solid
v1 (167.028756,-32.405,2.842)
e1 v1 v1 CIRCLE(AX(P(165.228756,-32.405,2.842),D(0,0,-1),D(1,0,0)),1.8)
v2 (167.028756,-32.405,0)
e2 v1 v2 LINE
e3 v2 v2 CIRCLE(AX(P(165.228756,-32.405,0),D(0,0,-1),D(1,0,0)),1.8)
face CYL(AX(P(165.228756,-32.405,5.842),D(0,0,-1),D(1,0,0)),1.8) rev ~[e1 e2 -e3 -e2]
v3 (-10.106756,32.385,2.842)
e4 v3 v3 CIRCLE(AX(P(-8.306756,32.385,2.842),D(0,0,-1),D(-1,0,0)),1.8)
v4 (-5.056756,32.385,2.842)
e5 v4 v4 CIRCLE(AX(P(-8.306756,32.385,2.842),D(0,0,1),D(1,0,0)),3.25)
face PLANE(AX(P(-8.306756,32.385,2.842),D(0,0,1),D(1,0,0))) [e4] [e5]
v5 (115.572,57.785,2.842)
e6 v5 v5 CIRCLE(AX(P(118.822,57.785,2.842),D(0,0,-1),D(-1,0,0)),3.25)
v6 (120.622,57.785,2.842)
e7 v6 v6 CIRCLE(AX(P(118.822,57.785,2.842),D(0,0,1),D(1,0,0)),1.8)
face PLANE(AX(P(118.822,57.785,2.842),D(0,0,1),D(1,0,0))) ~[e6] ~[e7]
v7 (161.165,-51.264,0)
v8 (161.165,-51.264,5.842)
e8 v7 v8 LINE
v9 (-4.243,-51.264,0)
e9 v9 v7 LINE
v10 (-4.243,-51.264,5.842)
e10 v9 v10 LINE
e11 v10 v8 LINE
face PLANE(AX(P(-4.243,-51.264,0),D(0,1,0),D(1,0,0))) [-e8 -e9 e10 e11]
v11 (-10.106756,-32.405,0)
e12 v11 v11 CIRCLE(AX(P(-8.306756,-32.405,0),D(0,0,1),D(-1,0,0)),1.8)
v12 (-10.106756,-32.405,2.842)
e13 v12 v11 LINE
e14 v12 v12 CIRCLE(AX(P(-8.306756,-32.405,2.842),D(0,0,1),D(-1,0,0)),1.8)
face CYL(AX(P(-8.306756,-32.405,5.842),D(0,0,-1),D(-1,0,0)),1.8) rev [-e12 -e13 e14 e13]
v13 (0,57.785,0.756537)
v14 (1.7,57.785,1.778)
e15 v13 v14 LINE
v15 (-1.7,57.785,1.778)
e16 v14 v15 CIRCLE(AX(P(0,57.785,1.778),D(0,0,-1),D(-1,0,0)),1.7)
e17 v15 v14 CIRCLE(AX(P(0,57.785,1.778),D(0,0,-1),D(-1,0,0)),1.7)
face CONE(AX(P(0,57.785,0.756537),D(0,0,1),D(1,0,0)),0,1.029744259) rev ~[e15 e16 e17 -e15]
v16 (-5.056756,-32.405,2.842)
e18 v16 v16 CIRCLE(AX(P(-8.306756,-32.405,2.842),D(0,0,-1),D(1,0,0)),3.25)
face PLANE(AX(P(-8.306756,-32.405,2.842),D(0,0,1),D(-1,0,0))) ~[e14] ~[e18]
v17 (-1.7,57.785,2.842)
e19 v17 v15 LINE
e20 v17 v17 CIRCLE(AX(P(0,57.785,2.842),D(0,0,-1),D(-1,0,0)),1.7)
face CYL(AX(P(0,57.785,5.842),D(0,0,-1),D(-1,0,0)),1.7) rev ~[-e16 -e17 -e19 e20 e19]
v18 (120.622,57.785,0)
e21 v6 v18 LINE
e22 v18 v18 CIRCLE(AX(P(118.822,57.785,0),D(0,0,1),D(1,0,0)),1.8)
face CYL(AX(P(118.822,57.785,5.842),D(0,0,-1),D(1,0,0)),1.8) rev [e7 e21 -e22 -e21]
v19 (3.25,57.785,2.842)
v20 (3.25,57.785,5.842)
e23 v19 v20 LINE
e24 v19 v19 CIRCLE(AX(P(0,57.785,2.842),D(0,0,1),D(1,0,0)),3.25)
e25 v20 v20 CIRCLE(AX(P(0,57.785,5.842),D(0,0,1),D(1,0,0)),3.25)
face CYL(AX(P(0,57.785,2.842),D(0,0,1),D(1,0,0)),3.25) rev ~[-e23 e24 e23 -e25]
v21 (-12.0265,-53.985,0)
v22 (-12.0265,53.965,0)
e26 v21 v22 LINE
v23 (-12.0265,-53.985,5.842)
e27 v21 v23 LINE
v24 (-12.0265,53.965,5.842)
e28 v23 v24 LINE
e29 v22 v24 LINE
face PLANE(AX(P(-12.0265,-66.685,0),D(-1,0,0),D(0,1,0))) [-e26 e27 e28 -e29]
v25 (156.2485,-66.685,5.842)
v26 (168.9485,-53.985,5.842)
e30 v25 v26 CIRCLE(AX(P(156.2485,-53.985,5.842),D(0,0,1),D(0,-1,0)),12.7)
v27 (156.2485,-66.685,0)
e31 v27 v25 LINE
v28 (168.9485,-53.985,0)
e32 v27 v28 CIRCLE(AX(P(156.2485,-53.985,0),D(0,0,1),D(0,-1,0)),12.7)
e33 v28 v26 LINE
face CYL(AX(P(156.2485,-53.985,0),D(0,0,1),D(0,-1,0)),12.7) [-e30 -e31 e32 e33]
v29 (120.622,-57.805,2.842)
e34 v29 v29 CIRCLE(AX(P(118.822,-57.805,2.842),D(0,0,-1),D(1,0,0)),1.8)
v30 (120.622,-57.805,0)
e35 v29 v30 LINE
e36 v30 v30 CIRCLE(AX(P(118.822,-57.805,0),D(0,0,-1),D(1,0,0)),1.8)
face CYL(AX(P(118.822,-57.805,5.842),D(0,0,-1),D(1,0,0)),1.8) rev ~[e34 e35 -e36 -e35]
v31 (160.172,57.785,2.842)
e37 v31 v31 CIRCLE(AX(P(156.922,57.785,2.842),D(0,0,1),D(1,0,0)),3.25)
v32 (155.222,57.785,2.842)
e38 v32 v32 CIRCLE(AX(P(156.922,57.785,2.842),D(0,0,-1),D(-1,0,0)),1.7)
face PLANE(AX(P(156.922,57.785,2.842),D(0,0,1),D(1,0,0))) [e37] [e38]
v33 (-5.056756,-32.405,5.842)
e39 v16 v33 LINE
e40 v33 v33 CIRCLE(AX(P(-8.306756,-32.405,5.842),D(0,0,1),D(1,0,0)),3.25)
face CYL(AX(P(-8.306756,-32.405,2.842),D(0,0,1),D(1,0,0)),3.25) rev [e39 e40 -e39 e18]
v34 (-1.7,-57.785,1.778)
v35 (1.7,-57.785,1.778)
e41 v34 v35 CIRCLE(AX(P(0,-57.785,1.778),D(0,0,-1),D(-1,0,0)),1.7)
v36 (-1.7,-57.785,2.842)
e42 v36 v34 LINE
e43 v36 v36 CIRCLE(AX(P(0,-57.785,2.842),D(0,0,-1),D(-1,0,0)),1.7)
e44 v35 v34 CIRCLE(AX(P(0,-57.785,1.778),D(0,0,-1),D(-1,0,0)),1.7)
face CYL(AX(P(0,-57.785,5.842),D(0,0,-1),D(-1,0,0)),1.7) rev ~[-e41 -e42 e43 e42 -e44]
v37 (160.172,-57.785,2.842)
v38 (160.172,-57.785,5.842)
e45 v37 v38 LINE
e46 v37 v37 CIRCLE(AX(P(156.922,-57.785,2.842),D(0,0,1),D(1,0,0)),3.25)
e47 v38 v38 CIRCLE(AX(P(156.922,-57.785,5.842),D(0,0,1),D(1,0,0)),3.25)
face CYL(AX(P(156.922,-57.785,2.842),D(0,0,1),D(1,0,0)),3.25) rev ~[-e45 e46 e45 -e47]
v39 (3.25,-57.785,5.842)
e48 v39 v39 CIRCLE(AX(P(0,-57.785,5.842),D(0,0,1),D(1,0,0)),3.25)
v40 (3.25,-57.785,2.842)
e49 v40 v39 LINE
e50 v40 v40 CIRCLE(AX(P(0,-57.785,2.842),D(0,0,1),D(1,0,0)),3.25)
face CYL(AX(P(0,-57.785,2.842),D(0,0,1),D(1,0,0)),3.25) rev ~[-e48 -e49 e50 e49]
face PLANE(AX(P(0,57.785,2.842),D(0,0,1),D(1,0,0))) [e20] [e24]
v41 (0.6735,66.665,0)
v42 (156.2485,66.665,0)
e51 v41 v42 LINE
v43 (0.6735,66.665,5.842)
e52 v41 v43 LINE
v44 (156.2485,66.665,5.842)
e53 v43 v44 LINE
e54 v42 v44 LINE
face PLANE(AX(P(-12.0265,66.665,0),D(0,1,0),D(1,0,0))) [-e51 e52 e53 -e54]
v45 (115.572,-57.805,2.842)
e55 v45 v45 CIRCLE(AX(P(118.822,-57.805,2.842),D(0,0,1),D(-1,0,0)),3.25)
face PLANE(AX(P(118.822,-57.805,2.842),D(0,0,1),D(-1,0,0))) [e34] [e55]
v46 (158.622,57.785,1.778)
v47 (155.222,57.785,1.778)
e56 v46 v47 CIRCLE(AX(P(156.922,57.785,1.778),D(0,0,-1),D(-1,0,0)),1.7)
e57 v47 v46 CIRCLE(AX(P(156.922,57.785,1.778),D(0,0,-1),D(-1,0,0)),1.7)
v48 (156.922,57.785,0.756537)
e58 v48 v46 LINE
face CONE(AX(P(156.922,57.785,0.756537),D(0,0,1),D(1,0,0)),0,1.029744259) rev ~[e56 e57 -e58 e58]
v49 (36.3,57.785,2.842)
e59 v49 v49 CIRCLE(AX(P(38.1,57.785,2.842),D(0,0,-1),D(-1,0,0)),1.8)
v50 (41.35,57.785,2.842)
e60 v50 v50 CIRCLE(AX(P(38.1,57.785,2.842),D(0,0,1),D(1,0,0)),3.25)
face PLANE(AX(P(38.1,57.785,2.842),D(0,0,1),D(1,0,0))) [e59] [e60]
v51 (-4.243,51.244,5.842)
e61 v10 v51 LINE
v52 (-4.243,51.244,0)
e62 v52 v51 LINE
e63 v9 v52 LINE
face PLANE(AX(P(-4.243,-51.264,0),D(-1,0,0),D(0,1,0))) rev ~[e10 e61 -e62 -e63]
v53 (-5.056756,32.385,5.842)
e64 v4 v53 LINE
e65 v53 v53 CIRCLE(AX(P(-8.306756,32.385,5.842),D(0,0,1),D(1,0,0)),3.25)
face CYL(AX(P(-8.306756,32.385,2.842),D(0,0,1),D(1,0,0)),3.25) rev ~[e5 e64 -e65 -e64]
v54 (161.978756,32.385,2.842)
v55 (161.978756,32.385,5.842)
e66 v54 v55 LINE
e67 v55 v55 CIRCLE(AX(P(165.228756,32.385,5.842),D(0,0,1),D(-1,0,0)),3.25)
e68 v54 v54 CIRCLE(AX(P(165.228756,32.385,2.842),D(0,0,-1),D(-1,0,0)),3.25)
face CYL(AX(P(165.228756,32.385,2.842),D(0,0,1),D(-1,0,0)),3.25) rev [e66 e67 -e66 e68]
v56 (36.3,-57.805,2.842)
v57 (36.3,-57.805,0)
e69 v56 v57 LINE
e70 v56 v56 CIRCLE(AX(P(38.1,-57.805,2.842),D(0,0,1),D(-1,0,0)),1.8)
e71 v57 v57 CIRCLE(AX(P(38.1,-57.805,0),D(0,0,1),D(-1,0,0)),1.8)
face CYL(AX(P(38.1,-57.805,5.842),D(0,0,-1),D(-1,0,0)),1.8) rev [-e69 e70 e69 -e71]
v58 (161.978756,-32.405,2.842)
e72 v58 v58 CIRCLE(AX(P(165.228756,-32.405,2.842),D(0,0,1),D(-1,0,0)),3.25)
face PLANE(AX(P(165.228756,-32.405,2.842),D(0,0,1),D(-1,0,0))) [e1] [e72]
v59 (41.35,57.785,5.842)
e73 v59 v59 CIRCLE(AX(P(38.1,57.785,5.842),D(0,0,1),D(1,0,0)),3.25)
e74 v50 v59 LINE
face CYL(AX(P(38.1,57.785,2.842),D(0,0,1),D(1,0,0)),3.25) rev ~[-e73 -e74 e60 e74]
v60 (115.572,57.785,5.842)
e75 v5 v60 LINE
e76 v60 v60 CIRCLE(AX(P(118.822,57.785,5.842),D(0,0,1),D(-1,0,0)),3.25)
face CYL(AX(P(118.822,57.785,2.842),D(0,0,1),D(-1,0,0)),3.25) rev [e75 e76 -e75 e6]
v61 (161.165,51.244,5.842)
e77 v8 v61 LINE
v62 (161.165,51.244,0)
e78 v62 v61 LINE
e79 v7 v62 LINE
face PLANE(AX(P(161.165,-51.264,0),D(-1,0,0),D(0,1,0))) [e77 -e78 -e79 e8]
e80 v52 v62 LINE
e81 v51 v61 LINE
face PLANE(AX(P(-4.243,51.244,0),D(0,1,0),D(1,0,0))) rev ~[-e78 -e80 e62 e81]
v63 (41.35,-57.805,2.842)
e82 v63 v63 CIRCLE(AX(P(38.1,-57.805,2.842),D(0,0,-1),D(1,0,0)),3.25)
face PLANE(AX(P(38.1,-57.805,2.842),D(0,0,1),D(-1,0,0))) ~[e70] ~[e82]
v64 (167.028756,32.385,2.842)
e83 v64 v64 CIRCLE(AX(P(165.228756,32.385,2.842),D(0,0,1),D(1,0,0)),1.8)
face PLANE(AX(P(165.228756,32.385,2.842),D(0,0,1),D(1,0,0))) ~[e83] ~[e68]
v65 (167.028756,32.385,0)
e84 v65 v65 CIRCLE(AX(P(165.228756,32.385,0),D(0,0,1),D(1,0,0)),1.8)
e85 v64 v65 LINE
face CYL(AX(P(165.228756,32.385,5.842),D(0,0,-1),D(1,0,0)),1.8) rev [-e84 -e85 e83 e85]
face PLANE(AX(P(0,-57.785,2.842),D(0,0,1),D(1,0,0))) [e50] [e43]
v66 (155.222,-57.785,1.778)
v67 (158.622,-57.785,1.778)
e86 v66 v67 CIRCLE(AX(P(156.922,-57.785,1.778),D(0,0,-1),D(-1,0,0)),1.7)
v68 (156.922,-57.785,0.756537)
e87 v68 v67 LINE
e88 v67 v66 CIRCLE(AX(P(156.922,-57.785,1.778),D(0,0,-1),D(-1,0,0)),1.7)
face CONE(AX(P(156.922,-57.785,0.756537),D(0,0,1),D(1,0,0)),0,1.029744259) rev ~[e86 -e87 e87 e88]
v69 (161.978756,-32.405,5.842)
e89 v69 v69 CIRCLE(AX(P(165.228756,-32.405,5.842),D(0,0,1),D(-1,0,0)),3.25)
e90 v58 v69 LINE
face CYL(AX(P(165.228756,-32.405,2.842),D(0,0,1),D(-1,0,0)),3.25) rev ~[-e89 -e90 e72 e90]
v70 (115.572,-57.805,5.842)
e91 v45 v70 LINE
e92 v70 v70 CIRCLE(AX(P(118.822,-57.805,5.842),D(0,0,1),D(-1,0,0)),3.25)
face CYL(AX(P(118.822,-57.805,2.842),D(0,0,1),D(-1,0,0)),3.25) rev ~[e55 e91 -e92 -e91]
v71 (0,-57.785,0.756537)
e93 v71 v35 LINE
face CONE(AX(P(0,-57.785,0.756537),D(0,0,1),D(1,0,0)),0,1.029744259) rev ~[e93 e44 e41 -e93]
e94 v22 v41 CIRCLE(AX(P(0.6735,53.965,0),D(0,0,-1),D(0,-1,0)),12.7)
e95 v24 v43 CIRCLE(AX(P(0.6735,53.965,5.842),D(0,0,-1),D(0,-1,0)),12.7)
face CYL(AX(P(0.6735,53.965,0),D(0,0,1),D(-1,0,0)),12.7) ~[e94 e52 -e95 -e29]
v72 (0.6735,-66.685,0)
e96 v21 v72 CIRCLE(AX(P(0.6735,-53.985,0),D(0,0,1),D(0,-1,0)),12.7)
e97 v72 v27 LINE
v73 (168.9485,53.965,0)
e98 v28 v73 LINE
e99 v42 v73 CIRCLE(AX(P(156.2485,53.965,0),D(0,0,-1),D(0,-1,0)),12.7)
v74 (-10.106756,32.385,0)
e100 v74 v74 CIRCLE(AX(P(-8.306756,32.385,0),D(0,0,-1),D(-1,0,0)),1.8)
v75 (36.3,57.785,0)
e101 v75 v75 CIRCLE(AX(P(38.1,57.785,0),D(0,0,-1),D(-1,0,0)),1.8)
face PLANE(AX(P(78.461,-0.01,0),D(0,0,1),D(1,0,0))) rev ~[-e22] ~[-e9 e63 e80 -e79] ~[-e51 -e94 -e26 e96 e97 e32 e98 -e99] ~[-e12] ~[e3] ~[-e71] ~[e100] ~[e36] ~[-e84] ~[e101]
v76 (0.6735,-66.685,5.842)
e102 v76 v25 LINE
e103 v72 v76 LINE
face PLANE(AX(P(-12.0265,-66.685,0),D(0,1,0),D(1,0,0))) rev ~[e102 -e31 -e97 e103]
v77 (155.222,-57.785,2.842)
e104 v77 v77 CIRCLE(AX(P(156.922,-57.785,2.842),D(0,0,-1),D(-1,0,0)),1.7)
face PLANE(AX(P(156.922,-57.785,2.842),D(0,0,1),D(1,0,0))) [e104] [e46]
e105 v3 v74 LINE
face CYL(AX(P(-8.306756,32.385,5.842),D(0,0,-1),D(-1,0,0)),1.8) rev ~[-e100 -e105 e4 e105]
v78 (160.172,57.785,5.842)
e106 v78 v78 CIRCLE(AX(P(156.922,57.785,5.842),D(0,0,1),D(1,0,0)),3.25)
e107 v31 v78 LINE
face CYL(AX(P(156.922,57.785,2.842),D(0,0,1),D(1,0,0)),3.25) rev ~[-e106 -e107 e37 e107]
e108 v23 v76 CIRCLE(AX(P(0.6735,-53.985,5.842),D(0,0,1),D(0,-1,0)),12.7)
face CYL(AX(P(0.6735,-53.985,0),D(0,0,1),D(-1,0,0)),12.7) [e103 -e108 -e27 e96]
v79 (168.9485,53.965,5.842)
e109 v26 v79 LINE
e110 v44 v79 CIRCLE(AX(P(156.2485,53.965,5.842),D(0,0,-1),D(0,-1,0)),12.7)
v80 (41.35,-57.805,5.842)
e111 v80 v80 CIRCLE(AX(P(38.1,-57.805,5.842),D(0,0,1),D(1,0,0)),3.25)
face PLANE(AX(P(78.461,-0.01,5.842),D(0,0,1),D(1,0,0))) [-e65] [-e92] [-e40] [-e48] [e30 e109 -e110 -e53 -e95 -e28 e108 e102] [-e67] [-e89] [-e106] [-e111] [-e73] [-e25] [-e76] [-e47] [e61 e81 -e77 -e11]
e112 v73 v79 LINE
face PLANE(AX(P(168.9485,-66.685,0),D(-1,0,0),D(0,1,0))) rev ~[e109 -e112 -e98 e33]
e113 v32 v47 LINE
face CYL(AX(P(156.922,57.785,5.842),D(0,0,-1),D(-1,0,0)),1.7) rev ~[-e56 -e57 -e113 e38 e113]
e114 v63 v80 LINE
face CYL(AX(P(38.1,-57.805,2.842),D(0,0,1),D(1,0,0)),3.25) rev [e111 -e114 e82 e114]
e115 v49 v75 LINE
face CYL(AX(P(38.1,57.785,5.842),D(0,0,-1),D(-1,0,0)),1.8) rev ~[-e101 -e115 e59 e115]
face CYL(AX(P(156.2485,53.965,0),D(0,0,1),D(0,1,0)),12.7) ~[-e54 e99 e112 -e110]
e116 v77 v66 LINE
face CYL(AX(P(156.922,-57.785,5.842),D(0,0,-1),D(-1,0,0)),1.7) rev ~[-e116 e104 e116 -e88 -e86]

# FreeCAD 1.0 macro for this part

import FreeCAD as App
import Part
import Sketcher
from FreeCAD import Vector
Q = App.Units.Quantity


def edges_at(feature, points):
    """Names of the edges that pass closest to the given points."""
    edges = feature.Shape.Edges
    near = lambda p: min(range(len(edges)), key=lambda i: edges[i].distToShape(Part.Vertex(*p))[0])
    return sorted({f"Edge{near(p) + 1}" for p in points})


def add_polygon(sketch, points):
    """Adds a closed chain of lines whose ends are joined by coincident constraints."""
    first, n = sketch.GeometryCount, len(points)
    for a, b in zip(points, points[1:] + points[:1]):
        sketch.addGeometry(Part.LineSegment(App.Vector(*a, 0), App.Vector(*b, 0)), False)
    for i in range(n):
        sketch.addConstraint(Sketcher.Constraint("Coincident", first + i, 2, first + (i + 1) % n, 1))

doc = App.newDocument("Part")
body = doc.addObject("PartDesign::Body", "Body")

# Sketch on XY plane
sketch1 = body.newObject("Sketcher::SketchObject", "Sketch")
sketch1.AttachmentSupport = (doc.getObject("XY_Plane"), [""])
sketch1.MapMode = "FlatFace"
add_polygon(sketch1, [(-12, 67), (-12, -67), (169, -67), (169, 67)])  # lines 0-3
add_polygon(sketch1, [(161, -51), (-4, -51), (-4, 51), (161, 51)])  # lines 4-7
sketch1.addConstraint([
    Sketcher.Constraint("Vertical", 0),
    Sketcher.Constraint("Horizontal", 1),
    Sketcher.Constraint("Vertical", 2),
    Sketcher.Constraint("Horizontal", 3),
    Sketcher.Constraint("Horizontal", 4),
    Sketcher.Constraint("Vertical", 5),
    Sketcher.Constraint("Horizontal", 6),
    Sketcher.Constraint("Vertical", 7),
    Sketcher.Constraint("DistanceY", 0, 2, 0, 1, Q("5.25 in")),
    Sketcher.Constraint("DistanceX", 1, 1, 1, 2, Q("7.125 in")),
    Sketcher.Constraint("DistanceX", 4, 2, 4, 1, Q("165.408 mm")),
    Sketcher.Constraint("DistanceY", 5, 1, 5, 2, Q("102.508 mm")),
    Sketcher.Constraint("DistanceX", 0, 2, -1, 1, Q("12.0265 mm")),
    Sketcher.Constraint("DistanceY", 0, 2, -1, 1, Q("66.685 mm")),
    Sketcher.Constraint("DistanceX", 4, 2, -1, 1, Q("4.243 mm")),
    Sketcher.Constraint("DistanceY", 4, 2, -1, 1, Q("51.264 mm")),
])
pad1 = body.newObject("PartDesign::Pad", "Pad")
pad1.Profile = sketch1
pad1.Length = Q("0.23 in")
doc.recompute()

fillet = body.newObject("PartDesign::Fillet", "Fillet")
fillet.Base = (pad1, edges_at(pad1, [
    (168.948, -66.685, 2.921),
    (168.948, 66.665, 2.921),
    (-12.027, 66.665, 2.921),
    (-12.027, -66.685, 2.921),
]))
fillet.Radius = Q("0.5 in")

# Sketch on XY plane
sketch2 = body.newObject("Sketcher::SketchObject", "Sketch001")
sketch2.AttachmentSupport = (doc.getObject("XY_Plane"), [""])
sketch2.MapMode = "FlatFace"
sketch2.AttachmentOffset = App.Placement(Vector(0, 0, 0.23 * 25.4), App.Rotation())
sketch2.addGeometry([
    Part.Circle(Vector(0, 57.8, 0), Vector(0, 0, 1), 1.7),
    Part.Circle(Vector(156.9, 57.8, 0), Vector(0, 0, 1), 1.7),
    Part.Circle(Vector(156.9, -57.8, 0), Vector(0, 0, 1), 1.7),
    Part.Circle(Vector(0, -57.8, 0), Vector(0, 0, 1), 1.7),
], False)
sketch2.addConstraint([
    Sketcher.Constraint("Equal", 0, 1),
    Sketcher.Constraint("Equal", 1, 2),
    Sketcher.Constraint("Equal", 2, 3),
    Sketcher.Constraint("Symmetric", 0, 3, 3, 3, -1, 1),
    Sketcher.Constraint("Symmetric", 1, 3, 2, 3, -1),
    Sketcher.Constraint("PointOnObject", 0, 3, -2),
    Sketcher.Constraint("Horizontal", 0, 3, 1, 3),
    Sketcher.Constraint("Diameter", 0, Q("3.4 mm")),
    Sketcher.Constraint("DistanceY", 2, 3, 1, 3, Q("4.55 in")),
    Sketcher.Constraint("DistanceX", -1, 1, 1, 3, Q("156.922 mm")),
])
doc.recompute()
hole = body.newObject("PartDesign::Hole", "Hole")
hole.Profile = sketch2
hole.ThreadType = "None"
hole.Diameter = 3.4
hole.DepthType = "Dimension"
hole.Depth = Q("0.16 in")
hole.DrillPoint = "Angled"
hole.DrillPointAngle = 118
hole.HoleCutType = "Counterbore"
hole.HoleCutDiameter = 6.5
hole.HoleCutDepth = 3

# Sketch on XY plane
sketch3 = body.newObject("Sketcher::SketchObject", "Sketch002")
sketch3.AttachmentSupport = (doc.getObject("XY_Plane"), [""])
sketch3.MapMode = "FlatFace"
sketch3.AttachmentOffset = App.Placement(Vector(0, 0, 0.23 * 25.4), App.Rotation())
sketch3.addGeometry([
    Part.Circle(Vector(38.1, 57.8, 0), Vector(0, 0, 1), 1.8),
    Part.Circle(Vector(-8.3, 32.4, 0), Vector(0, 0, 1), 1.8),
], False)
sketch3.addConstraint([
    Sketcher.Constraint("Equal", 0, 1),
    Sketcher.Constraint("DistanceY", 1, 3, 0, 3, Q("1 in")),
    Sketcher.Constraint("DistanceX", -1, 1, 0, 3, Q("1.5 in")),
    Sketcher.Constraint("Diameter", 0, Q("3.6 mm")),
    Sketcher.Constraint("DistanceY", -1, 1, 0, 3, Q("2.275 in")),
    Sketcher.Constraint("DistanceX", 1, 3, -1, 1, Q("8.306756 mm")),
])
doc.recompute()
hole2 = body.newObject("PartDesign::Hole", "Hole001")
hole2.Profile = sketch3
hole2.ThreadType = "None"
hole2.Diameter = 3.6
hole2.DepthType = "Dimension"
hole2.Depth = Q("0.23 in")
hole2.DrillPoint = "Flat"
hole2.HoleCutType = "Counterbore"
hole2.HoleCutDiameter = 6.5
hole2.HoleCutDepth = 3
doc.recompute()

datumplane = body.newObject("PartDesign::Plane", "DatumPlane")
datumplane.AttachmentSupport = (doc.getObject("XZ_Plane"), [""])
datumplane.MapMode = "FlatFace"
datumplane.AttachmentOffset = App.Placement(Vector(0, 0, 0.01), App.Rotation())
mirrored = body.newObject("PartDesign::Mirrored", "Mirrored")
mirrored.Originals = [hole2]
mirrored.MirrorPlane = (datumplane, [""])
body.Tip = mirrored
doc.recompute()

datumplane2 = body.newObject("PartDesign::Plane", "DatumPlane001")
datumplane2.AttachmentSupport = (doc.getObject("YZ_Plane"), [""])
datumplane2.MapMode = "FlatFace"
datumplane2.AttachmentOffset = App.Placement(Vector(0, 0, 78.461), App.Rotation())
mirrored2 = body.newObject("PartDesign::Mirrored", "Mirrored001")
mirrored2.Originals = [hole2]
mirrored2.MirrorPlane = (datumplane2, [""])
body.Tip = mirrored2

# Sketch on XY plane
sketch4 = body.newObject("Sketcher::SketchObject", "Sketch003")
sketch4.AttachmentSupport = (doc.getObject("XY_Plane"), [""])
sketch4.MapMode = "FlatFace"
sketch4.AttachmentOffset = App.Placement(Vector(0, 0, 0.23 * 25.4), App.Rotation())
sketch4.addGeometry([
    Part.Circle(Vector(118.8, -57.8, 0), Vector(0, 0, 1), 1.8),
    Part.Circle(Vector(165.2, -32.4, 0), Vector(0, 0, 1), 1.8),
], False)
sketch4.addConstraint([
    Sketcher.Constraint("Equal", 0, 1),
    Sketcher.Constraint("DistanceY", 0, 3, 1, 3, Q("1 in")),
    Sketcher.Constraint("Diameter", 0, Q("3.6 mm")),
    Sketcher.Constraint("DistanceX", -1, 1, 0, 3, Q("118.822 mm")),
    Sketcher.Constraint("DistanceY", 0, 3, -1, 1, Q("57.805 mm")),
    Sketcher.Constraint("DistanceX", -1, 1, 1, 3, Q("165.228756 mm")),
])
doc.recompute()
hole3 = body.newObject("PartDesign::Hole", "Hole002")
hole3.Profile = sketch4
hole3.ThreadType = "None"
hole3.Diameter = 3.6
hole3.DepthType = "Dimension"
hole3.Depth = Q("0.23 in")
hole3.DrillPoint = "Flat"
hole3.HoleCutType = "Counterbore"
hole3.HoleCutDiameter = 6.5
hole3.HoleCutDepth = 3

doc.recompute()
